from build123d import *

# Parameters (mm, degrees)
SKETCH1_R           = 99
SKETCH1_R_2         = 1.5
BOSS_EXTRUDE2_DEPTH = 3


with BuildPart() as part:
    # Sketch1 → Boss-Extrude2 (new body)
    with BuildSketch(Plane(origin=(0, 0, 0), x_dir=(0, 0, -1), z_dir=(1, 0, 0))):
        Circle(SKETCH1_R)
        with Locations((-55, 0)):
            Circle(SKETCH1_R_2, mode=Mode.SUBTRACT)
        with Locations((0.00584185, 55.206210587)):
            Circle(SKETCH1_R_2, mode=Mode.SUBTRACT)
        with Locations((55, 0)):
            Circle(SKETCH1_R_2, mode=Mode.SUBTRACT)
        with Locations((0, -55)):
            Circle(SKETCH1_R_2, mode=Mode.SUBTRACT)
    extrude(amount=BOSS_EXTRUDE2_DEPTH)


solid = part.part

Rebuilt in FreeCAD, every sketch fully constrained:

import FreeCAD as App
import Part
import Sketcher

V = App.Vector

doc = App.newDocument("Part")
params = doc.addObject("Spreadsheet::Sheet", "Params")
for row, (alias, value) in enumerate([
    ("sketch1_diameter", "198 mm"),
    ("sketch1_diameter2", "3 mm"),
    ("pad1_length", "3 mm"),
], start=1):
    params.set(f"A{row}", alias)
    params.set(f"B{row}", "=" + value)
    params.setAlias(f"B{row}", alias)

body = doc.addObject("PartDesign::Body", "Body")

# Sketch on YZ plane
sketch1 = body.newObject("Sketcher::SketchObject", "Sketch")
sketch1.AttachmentSupport = (doc.getObject("YZ_Plane"), [""])
sketch1.MapMode = "FlatFace"
sketch1.addGeometry(Part.Circle(V(0, 0, 0), V(0, 0, 1), 99), False)
sketch1.addGeometry(Part.Circle(V(0, 55, 0), V(0, 0, 1), 1.5), False)
sketch1.addGeometry(Part.Circle(V(-55, 0, 0), V(0, 0, 1), 1.5), False)
sketch1.addGeometry(Part.Circle(V(0, -55, 0), V(0, 0, 1), 1.5), False)
sketch1.addGeometry(Part.Circle(V(55.206211, -0.005842, 0), V(0, 0, 1), 1.5), False)
sketch1.addConstraint(Sketcher.Constraint("Coincident", 0, 3, -1, 1))
sketch1.addConstraint(Sketcher.Constraint("Equal", 1, 2))
sketch1.addConstraint(Sketcher.Constraint("Equal", 2, 3))
sketch1.addConstraint(Sketcher.Constraint("Equal", 3, 4))
sketch1.addConstraint(Sketcher.Constraint("Symmetric", 1, 3, 3, 3, -1, 1))
sketch1.addConstraint(Sketcher.Constraint("PointOnObject", 1, 3, -2))
sketch1.addConstraint(Sketcher.Constraint("PointOnObject", 2, 3, -1))
sketch1.addConstraint(Sketcher.Constraint("Diameter", 0, 198.0))
sketch1.addConstraint(Sketcher.Constraint("Diameter", 1, 3.0))
sketch1.addConstraint(Sketcher.Constraint("DistanceY", -1, 1, 1, 3, 55.0))
sketch1.addConstraint(Sketcher.Constraint("DistanceX", 2, 3, -1, 1, 55.0))
sketch1.addConstraint(Sketcher.Constraint("DistanceX", -1, 1, 4, 3, 55.206211))
sketch1.addConstraint(Sketcher.Constraint("DistanceY", 4, 3, -1, 1, 0.005842))
sketch1.setExpression("Constraints[7]", "Params.sketch1_diameter")
sketch1.setExpression("Constraints[8]", "Params.sketch1_diameter2")
pad1 = body.newObject("PartDesign::Pad", "Pad")
pad1.Profile = sketch1
pad1.setExpression("Length", "Params.pad1_length")

doc.recompute()
